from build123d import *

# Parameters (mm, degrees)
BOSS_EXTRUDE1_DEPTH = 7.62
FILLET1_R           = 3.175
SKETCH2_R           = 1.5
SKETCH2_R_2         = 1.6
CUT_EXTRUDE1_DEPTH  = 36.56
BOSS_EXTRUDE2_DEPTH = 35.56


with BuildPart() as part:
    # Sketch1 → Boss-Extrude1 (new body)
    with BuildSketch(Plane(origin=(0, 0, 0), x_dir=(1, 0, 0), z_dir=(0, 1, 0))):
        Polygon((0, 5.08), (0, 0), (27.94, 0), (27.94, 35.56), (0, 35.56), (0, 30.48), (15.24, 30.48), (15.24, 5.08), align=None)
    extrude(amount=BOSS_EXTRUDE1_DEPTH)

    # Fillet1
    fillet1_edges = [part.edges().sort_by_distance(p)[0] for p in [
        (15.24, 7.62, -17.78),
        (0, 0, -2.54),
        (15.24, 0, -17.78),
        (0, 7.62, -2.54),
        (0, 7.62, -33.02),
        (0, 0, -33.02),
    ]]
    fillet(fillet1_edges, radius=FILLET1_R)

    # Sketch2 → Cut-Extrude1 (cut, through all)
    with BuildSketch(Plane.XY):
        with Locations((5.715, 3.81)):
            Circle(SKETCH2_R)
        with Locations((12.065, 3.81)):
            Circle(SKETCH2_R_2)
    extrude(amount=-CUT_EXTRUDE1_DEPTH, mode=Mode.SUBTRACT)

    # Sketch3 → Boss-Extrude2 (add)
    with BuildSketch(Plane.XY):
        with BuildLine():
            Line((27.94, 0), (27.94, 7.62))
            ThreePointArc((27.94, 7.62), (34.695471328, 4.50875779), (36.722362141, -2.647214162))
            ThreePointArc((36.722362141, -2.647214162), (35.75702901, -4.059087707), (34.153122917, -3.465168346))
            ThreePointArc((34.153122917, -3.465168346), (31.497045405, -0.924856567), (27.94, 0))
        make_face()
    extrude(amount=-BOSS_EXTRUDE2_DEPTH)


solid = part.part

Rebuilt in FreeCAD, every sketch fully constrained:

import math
import FreeCAD as App
import Part
import Sketcher
from FreeCAD import Vector
Q = App.Units.Quantity


def edges_at(feature, points):
    """Names of the edges that pass closest to the given points."""
    edges = feature.Shape.Edges
    near = lambda p: min(range(len(edges)), key=lambda i: edges[i].distToShape(Part.Vertex(*p))[0])
    return sorted({f"Edge{near(p) + 1}" for p in points})

doc = App.newDocument("Part")
body = doc.addObject("PartDesign::Body", "Body")

sketch1 = body.newObject("Sketcher::SketchObject", "Sketch")
sketch1.AttachmentSupport = (doc.getObject("XZ_Plane"), [""])
sketch1.MapMode = "FlatFace"
sketch1.addGeometry(Part.LineSegment(Vector(0, -5, 0), Vector(0, 0, 0)), False)
sketch1.addGeometry(Part.LineSegment(Vector(0, 0, 0), Vector(28, 0, 0)), False)
sketch1.addGeometry(Part.LineSegment(Vector(28, 0, 0), Vector(28, -36, 0)), False)
sketch1.addGeometry(Part.LineSegment(Vector(28, -36, 0), Vector(0, -36, 0)), False)
sketch1.addGeometry(Part.LineSegment(Vector(0, -36, 0), Vector(0, -30, 0)), False)
sketch1.addGeometry(Part.LineSegment(Vector(0, -30, 0), Vector(15, -30, 0)), False)
sketch1.addGeometry(Part.LineSegment(Vector(15, -30, 0), Vector(15, -5, 0)), False)
sketch1.addGeometry(Part.LineSegment(Vector(15, -5, 0), Vector(0, -5, 0)), False)
sketch1.addConstraint(Sketcher.Constraint("Coincident", 0, 2, 1, 1))
sketch1.addConstraint(Sketcher.Constraint("Coincident", 1, 2, 2, 1))
sketch1.addConstraint(Sketcher.Constraint("Coincident", 2, 2, 3, 1))
sketch1.addConstraint(Sketcher.Constraint("Coincident", 3, 2, 4, 1))
sketch1.addConstraint(Sketcher.Constraint("Coincident", 4, 2, 5, 1))
sketch1.addConstraint(Sketcher.Constraint("Coincident", 5, 2, 6, 1))
sketch1.addConstraint(Sketcher.Constraint("Coincident", 6, 2, 7, 1))
sketch1.addConstraint(Sketcher.Constraint("Coincident", 7, 2, 0, 1))
sketch1.addConstraint(Sketcher.Constraint("Vertical", 0))
sketch1.addConstraint(Sketcher.Constraint("Horizontal", 1))
sketch1.addConstraint(Sketcher.Constraint("Vertical", 2))
sketch1.addConstraint(Sketcher.Constraint("Horizontal", 3))
sketch1.addConstraint(Sketcher.Constraint("Vertical", 4))
sketch1.addConstraint(Sketcher.Constraint("Horizontal", 5))
sketch1.addConstraint(Sketcher.Constraint("Vertical", 6))
sketch1.addConstraint(Sketcher.Constraint("Horizontal", 7))
sketch1.addConstraint(Sketcher.Constraint("Coincident", 0, 2, -1, 1))
sketch1.addConstraint(Sketcher.Constraint("PointOnObject", 3, 2, -2))
sketch1.addConstraint(Sketcher.Constraint("Equal", 0, 4))
sketch1.addConstraint(Sketcher.Constraint("DistanceY", 6, 1, 6, 2, Q("1 in")))
sketch1.addConstraint(Sketcher.Constraint("DistanceX", 1, 1, 1, 2, Q("1.1 in")))
sketch1.addConstraint(Sketcher.Constraint("DistanceX", 5, 1, 5, 2, Q("0.6 in")))
sketch1.addConstraint(Sketcher.Constraint("DistanceY", 0, 1, 0, 2, Q("0.2 in")))
pad1 = body.newObject("PartDesign::Pad", "Pad")
pad1.Profile = sketch1
pad1.Length = Q("0.3 in")
pad1.Reversed = True
doc.recompute()

fillet = body.newObject("PartDesign::Fillet", "Fillet")
fillet.Base = (pad1, edges_at(pad1, [
    (15.24, 7.62, -17.78),
    (0, 0, -2.54),
    (15.24, 0, -17.78),
    (0, 7.62, -2.54),
    (0, 7.62, -33.02),
    (0, 0, -33.02),
]))
fillet.Radius = Q("0.125 in")

sketch2 = body.newObject("Sketcher::SketchObject", "Sketch001")
sketch2.AttachmentSupport = (doc.getObject("XY_Plane"), [""])
sketch2.MapMode = "FlatFace"
sketch2.addGeometry(Part.Circle(Vector(5.7, 3.8, 0), Vector(0, 0, 1), 1.5), False)
sketch2.addGeometry(Part.Circle(Vector(12.1, 3.8, 0), Vector(0, 0, 1), 1.6), False)
sketch2.addConstraint(Sketcher.Constraint("Horizontal", 0, 3, 1, 3))
sketch2.addConstraint(Sketcher.Constraint("Diameter", 0, 3.0))
sketch2.addConstraint(Sketcher.Constraint("Diameter", 1, 3.2))
sketch2.addConstraint(Sketcher.Constraint("DistanceY", -1, 1, 0, 3, Q("0.15 in")))
sketch2.addConstraint(Sketcher.Constraint("DistanceX", 0, 3, 1, 3, Q("0.25 in")))
sketch2.addConstraint(Sketcher.Constraint("DistanceX", -1, 1, 0, 3, Q("0.225 in")))
pocket1 = body.newObject("PartDesign::Pocket", "Pocket")
pocket1.Profile = sketch2
pocket1.Type = "ThroughAll"

sketch3 = body.newObject("Sketcher::SketchObject", "Sketch002")
sketch3.AttachmentSupport = (doc.getObject("XY_Plane"), [""])
sketch3.MapMode = "FlatFace"
sketch3.addGeometry(Part.LineSegment(Vector(27.9, 7.6, 0), Vector(27.9, 0, 0)), False)
sketch3.addGeometry(Part.ArcOfCircle(Part.Circle(Vector(27.9, -7.3, 0), Vector(0, 0, 1), 7.3), math.radians(32), math.radians(90)), False)
sketch3.addGeometry(Part.ArcOfCircle(Part.Circle(Vector(35.3, -2.7, 0), Vector(0, 0, 1), 1.4), math.radians(-148), math.radians(4)), False)
sketch3.addGeometry(Part.ArcOfCircle(Part.Circle(Vector(27.9, -1.3, 0), Vector(0, 0, 1), 8.9), math.radians(-9), math.radians(90)), False)
sketch3.addConstraint(Sketcher.Constraint("Coincident", 0, 2, 1, 2))
sketch3.addConstraint(Sketcher.Constraint("Tangent", 1, 1, 2, 1))
sketch3.addConstraint(Sketcher.Constraint("Coincident", 2, 2, 3, 1))
sketch3.addConstraint(Sketcher.Constraint("Coincident", 3, 2, 0, 1))
sketch3.addConstraint(Sketcher.Constraint("Vertical", 0))
sketch3.addConstraint(Sketcher.Constraint("PointOnObject", 0, 2, -1))
sketch3.addConstraint(Sketcher.Constraint("Vertical", 1, 3, 3, 3))
sketch3.addConstraint(Sketcher.Constraint("Vertical", 3, 3, 0, 2))
sketch3.addConstraint(Sketcher.Constraint("DistanceY", 0, 2, 0, 1, Q("0.3 in")))
sketch3.addConstraint(Sketcher.Constraint("DistanceX", -1, 1, 1, 3, Q("1.1 in")))
sketch3.addConstraint(Sketcher.Constraint("Radius", 1, 7.302717))
sketch3.addConstraint(Sketcher.Constraint("Radius", 2, 1.389677))
sketch3.addConstraint(Sketcher.Constraint("Radius", 3, 8.889732))
sketch3.addConstraint(Sketcher.Constraint("DistanceY", 2, 3, -1, 1, 2.734899))
pad2 = body.newObject("PartDesign::Pad", "Pad001")
pad2.Profile = sketch3
pad2.Length = Q("1.4 in")
pad2.Reversed = True

doc.recompute()
